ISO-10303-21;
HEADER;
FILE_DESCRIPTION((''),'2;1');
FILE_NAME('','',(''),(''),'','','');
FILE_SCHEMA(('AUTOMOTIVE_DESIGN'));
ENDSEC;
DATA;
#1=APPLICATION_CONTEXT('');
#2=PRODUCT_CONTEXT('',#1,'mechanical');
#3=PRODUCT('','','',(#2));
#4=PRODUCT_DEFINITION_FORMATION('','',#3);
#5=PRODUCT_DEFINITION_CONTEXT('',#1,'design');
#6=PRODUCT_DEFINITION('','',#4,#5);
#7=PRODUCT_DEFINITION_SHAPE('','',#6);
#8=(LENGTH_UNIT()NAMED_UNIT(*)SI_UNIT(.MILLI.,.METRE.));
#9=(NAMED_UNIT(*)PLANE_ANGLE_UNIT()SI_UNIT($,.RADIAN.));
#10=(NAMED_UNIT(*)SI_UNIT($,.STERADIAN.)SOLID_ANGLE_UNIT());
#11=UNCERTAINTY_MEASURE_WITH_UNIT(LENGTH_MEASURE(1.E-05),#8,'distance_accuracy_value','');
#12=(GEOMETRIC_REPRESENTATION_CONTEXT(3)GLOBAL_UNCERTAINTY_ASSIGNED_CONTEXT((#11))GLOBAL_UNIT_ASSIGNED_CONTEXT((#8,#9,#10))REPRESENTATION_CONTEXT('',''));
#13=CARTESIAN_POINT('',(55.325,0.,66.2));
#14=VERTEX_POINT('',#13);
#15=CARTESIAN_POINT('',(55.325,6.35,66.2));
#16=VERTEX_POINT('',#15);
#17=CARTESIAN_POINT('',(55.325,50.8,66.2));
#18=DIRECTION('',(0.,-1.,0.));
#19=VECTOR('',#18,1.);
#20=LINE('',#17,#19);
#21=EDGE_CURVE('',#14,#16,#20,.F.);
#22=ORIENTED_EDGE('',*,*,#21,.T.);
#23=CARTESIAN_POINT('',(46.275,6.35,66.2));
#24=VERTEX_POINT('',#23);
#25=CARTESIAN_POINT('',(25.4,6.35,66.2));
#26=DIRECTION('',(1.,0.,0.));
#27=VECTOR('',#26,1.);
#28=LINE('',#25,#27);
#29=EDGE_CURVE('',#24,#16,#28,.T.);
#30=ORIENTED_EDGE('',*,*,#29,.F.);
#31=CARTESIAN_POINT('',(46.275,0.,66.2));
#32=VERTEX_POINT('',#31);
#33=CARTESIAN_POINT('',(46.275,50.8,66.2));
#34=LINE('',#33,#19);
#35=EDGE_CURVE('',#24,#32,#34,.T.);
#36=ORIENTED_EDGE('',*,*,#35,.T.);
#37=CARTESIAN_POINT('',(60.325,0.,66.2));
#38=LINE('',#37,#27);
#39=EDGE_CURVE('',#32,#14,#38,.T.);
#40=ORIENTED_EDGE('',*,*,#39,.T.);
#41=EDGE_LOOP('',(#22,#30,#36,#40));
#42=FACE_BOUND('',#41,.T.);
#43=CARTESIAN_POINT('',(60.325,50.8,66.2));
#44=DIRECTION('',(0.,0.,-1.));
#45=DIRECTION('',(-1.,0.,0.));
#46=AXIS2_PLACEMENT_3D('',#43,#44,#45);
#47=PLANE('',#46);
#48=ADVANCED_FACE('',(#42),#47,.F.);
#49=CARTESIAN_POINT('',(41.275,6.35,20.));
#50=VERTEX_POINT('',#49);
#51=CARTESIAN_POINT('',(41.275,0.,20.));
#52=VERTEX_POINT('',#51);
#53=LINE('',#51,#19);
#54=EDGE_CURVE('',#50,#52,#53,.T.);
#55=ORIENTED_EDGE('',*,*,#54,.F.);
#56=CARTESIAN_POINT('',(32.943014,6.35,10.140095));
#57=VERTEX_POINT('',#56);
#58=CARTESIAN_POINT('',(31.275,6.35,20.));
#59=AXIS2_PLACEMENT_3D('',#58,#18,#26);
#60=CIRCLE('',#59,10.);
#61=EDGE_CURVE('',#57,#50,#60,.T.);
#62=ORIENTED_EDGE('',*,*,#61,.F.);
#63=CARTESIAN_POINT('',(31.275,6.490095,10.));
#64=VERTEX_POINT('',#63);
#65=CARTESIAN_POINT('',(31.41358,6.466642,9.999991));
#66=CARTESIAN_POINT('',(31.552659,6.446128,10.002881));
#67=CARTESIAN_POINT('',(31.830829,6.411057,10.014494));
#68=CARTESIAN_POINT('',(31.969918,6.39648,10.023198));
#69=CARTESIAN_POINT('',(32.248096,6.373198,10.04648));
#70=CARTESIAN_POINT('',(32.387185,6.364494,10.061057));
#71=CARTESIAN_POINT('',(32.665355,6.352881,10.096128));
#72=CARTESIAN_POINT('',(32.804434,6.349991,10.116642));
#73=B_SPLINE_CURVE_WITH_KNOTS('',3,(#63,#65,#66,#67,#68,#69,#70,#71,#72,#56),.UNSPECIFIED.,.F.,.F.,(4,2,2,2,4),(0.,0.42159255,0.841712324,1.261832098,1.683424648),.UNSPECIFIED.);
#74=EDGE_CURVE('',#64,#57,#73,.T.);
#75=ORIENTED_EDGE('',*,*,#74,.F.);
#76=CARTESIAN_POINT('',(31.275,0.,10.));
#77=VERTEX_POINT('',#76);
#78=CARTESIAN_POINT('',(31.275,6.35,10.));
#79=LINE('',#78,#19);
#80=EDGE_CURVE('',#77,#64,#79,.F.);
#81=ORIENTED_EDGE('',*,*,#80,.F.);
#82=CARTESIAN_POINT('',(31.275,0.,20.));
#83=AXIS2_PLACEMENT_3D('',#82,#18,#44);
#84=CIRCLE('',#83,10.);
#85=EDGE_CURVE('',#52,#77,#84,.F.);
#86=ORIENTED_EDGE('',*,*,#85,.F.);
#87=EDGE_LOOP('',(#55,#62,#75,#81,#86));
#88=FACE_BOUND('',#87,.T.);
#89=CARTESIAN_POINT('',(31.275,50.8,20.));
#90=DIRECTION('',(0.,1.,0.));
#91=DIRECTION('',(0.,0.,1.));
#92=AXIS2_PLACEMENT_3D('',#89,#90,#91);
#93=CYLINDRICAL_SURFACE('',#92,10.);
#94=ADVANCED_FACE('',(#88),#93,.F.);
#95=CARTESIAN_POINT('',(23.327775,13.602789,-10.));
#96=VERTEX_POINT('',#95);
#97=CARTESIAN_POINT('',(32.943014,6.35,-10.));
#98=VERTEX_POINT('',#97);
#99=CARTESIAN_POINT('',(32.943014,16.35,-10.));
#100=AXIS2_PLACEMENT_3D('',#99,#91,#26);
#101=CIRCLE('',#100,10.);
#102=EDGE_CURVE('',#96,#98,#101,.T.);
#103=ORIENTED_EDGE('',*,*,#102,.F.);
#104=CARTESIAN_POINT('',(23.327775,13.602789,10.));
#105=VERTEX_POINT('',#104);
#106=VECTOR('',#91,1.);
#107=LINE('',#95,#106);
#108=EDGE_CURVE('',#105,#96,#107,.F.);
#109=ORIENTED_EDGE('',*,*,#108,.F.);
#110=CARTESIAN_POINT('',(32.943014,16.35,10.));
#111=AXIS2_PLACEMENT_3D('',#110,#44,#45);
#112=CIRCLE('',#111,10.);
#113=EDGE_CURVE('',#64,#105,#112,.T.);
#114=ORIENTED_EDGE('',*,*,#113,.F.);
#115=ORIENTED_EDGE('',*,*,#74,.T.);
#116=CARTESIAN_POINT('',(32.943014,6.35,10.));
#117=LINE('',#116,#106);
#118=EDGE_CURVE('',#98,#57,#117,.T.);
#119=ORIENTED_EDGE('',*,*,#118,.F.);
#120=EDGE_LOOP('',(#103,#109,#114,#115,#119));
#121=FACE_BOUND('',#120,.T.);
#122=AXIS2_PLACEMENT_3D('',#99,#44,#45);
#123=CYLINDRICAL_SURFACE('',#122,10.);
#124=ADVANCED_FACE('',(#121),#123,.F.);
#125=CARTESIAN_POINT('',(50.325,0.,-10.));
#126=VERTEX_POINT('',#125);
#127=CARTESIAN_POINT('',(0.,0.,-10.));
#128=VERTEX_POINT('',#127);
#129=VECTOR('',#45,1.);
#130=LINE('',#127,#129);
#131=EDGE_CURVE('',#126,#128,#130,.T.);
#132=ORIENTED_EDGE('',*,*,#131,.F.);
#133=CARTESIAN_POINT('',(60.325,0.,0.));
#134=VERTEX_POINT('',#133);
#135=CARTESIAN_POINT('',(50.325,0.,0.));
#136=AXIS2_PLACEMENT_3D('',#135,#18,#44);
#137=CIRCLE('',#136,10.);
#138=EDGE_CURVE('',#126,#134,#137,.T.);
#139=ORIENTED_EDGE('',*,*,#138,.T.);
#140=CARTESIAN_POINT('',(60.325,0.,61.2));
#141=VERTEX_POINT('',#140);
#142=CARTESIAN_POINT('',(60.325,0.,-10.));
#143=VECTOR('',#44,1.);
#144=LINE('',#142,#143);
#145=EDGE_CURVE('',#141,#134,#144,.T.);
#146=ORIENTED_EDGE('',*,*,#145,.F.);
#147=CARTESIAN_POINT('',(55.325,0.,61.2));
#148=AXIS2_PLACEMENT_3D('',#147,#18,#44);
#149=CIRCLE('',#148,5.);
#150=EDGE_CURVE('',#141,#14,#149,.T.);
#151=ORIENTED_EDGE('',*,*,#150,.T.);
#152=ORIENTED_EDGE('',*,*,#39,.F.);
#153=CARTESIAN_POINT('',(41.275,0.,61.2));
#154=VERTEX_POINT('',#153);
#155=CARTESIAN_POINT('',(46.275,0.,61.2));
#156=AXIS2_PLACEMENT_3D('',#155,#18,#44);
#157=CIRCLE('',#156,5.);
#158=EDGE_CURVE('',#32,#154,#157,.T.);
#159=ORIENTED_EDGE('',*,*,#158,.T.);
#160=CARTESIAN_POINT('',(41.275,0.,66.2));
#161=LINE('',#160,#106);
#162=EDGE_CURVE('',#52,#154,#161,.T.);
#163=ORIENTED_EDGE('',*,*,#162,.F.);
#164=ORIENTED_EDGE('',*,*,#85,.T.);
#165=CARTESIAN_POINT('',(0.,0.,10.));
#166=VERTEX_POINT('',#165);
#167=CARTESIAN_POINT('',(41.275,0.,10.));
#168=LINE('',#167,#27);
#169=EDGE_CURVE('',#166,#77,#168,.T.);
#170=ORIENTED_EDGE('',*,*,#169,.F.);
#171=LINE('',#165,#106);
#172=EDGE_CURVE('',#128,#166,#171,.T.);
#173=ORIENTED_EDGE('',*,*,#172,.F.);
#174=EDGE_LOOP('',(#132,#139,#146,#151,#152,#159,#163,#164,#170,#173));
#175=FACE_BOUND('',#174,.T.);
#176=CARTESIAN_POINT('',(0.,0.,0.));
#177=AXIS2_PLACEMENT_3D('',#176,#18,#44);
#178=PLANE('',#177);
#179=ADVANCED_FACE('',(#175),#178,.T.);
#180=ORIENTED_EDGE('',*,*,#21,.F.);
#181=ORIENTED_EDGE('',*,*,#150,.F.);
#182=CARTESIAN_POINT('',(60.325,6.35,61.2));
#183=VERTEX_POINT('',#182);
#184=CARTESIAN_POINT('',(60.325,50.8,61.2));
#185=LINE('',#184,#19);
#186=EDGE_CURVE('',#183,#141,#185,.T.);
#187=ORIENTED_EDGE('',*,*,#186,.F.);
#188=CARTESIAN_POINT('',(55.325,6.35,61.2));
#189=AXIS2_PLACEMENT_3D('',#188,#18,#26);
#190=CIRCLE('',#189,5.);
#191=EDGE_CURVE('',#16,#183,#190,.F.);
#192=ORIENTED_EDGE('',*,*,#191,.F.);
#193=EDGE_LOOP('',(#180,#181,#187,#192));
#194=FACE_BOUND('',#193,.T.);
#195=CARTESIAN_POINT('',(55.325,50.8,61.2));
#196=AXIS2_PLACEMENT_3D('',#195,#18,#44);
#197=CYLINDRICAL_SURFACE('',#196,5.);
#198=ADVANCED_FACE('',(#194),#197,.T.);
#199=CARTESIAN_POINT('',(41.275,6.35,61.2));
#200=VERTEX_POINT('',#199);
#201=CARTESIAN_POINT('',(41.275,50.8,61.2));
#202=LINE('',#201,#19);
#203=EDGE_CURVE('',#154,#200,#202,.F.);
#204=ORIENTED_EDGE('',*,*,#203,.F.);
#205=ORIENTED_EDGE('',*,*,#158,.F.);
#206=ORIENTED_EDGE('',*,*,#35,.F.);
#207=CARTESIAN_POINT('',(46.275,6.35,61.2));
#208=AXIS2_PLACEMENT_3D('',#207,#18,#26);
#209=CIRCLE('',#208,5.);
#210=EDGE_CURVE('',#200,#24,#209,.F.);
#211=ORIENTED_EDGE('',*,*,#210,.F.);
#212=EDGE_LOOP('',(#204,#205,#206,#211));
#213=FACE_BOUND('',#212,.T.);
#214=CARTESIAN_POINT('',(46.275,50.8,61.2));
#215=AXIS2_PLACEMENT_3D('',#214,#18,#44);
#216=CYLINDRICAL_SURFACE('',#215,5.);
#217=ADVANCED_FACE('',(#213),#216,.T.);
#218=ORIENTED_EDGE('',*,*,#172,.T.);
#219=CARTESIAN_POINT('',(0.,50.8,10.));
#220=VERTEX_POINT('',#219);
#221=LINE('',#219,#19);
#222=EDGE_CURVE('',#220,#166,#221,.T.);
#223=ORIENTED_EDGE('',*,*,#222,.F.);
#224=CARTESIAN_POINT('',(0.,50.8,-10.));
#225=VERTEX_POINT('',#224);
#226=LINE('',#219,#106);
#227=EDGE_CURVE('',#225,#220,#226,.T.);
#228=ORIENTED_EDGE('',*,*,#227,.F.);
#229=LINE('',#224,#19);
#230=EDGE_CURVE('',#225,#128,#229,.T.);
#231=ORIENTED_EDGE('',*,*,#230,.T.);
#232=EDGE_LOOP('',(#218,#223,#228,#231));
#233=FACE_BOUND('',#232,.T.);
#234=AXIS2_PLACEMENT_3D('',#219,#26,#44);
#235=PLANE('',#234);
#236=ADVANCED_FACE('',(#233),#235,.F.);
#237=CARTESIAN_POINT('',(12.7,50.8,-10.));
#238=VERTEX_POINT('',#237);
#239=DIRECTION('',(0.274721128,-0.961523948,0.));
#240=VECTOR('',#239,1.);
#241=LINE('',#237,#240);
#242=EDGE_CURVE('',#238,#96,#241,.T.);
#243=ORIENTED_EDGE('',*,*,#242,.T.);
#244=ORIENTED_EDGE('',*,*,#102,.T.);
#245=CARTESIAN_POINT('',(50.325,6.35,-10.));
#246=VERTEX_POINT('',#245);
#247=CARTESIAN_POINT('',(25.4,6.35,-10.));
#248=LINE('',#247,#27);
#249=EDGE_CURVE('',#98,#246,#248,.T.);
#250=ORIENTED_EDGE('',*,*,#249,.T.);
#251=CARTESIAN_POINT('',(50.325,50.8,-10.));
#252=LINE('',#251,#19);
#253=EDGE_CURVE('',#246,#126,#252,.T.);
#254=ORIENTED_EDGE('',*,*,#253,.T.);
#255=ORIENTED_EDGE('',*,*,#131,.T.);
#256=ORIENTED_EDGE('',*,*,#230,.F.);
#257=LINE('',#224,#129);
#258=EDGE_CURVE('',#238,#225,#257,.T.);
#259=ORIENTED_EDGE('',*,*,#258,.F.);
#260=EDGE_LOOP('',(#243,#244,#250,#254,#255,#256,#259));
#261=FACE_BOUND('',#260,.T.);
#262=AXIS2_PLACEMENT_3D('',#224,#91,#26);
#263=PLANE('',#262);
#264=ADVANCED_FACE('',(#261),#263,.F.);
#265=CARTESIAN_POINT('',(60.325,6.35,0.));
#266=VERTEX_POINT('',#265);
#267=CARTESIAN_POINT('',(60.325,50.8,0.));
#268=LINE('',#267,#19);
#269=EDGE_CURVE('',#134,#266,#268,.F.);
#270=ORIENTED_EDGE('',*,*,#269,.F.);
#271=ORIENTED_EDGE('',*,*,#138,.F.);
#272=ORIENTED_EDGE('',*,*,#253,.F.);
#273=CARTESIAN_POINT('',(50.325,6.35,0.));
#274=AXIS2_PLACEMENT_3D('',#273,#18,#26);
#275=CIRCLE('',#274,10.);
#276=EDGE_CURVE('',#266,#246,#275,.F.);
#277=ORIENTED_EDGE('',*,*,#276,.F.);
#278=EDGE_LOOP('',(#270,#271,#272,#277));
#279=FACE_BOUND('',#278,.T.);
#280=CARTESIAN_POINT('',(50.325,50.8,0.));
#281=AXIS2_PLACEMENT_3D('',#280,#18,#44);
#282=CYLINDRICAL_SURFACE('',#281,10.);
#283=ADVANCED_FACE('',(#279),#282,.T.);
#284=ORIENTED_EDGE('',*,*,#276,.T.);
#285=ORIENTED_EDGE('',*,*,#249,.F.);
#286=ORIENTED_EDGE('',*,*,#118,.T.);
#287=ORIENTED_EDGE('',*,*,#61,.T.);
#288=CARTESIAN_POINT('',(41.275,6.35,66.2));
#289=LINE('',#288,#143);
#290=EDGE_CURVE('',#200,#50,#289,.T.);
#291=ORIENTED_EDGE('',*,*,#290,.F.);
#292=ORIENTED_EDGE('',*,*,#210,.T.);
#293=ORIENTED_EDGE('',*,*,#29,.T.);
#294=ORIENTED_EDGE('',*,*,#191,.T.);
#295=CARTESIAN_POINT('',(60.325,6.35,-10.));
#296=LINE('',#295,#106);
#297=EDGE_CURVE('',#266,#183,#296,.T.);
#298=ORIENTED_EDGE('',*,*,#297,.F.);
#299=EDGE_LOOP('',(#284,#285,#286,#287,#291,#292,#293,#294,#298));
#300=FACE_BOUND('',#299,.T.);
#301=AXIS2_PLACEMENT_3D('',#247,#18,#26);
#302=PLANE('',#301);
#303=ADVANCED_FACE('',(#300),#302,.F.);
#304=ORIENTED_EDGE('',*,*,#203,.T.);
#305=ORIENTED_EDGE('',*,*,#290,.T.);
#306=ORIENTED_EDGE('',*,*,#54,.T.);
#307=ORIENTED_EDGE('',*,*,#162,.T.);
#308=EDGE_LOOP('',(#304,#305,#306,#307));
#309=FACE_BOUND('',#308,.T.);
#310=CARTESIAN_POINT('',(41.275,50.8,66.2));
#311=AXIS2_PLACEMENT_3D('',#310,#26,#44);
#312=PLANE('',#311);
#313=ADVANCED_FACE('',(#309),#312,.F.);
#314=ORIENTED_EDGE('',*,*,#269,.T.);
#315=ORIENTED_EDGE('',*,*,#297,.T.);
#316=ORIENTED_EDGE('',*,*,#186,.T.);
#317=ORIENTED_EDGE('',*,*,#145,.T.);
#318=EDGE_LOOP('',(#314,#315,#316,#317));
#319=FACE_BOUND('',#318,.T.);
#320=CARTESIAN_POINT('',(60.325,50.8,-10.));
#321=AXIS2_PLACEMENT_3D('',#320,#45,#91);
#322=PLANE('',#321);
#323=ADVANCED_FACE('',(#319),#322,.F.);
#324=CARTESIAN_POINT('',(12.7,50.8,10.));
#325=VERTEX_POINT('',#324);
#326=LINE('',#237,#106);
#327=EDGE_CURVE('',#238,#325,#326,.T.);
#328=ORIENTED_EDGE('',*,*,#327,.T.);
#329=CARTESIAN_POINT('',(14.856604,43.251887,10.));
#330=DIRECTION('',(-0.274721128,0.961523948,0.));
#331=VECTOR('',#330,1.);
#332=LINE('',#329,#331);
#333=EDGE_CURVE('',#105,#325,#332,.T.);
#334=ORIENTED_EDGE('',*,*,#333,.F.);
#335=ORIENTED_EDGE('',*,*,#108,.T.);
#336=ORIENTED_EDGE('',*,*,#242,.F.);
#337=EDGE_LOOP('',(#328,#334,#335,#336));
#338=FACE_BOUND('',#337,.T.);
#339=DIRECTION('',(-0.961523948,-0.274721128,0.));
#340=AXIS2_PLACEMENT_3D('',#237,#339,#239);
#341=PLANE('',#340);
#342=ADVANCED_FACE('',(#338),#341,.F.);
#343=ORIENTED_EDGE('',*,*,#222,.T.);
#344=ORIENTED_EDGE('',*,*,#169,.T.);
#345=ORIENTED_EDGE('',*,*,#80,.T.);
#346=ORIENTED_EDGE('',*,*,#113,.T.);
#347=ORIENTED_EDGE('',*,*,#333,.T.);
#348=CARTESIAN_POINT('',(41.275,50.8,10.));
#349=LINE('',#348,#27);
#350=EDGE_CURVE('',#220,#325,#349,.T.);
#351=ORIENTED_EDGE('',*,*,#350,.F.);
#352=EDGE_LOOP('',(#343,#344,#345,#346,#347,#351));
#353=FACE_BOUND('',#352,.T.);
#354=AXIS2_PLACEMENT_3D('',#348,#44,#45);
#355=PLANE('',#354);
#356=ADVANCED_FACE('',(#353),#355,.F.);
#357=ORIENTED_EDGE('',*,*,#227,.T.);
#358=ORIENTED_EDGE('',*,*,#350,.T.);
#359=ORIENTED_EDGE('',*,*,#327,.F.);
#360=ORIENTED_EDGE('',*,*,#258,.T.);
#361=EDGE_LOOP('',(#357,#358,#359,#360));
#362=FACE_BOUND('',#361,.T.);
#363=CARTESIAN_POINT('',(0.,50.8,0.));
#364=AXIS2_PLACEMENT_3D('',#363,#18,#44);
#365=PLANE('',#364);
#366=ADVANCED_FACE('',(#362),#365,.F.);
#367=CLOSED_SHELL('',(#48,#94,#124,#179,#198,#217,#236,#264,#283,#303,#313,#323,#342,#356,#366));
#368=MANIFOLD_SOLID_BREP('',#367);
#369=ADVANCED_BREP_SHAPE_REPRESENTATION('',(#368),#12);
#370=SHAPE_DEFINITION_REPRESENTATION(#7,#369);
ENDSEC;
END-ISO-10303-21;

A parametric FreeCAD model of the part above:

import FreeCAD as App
import Part
import Sketcher
Q = App.Units.Quantity


def edges_at(feature, points):
    """Names of the edges that pass closest to the given points."""
    edges = feature.Shape.Edges
    near = lambda p: min(range(len(edges)), key=lambda i: edges[i].distToShape(Part.Vertex(*p))[0])
    return sorted({f"Edge{near(p) + 1}" for p in points})

doc = App.newDocument("Part")
body = doc.addObject("PartDesign::Body", "Body")

# Sketch on XZ plane
sketch1 = body.newObject("Sketcher::SketchObject", "Sketch")
sketch1.AttachmentSupport = (doc.getObject("XZ_Plane"), [""])
sketch1.MapMode = "FlatFace"
sketch1.addGeometry([
    Part.LineSegment(App.Vector(0, -10, 0), App.Vector(0, 10, 0)),  # 0
    Part.LineSegment(App.Vector(0, 10, 0), App.Vector(41.275, 10, 0)),  # 1
    Part.LineSegment(App.Vector(41.275, 10, 0), App.Vector(41.275, 66.2, 0)),  # 2
    Part.LineSegment(App.Vector(41.275, 66.2, 0), App.Vector(60.325, 66.2, 0)),  # 3
    Part.LineSegment(App.Vector(60.325, 66.2, 0), App.Vector(60.325, -10, 0)),  # 4
    Part.LineSegment(App.Vector(60.325, -10, 0), App.Vector(0, -10, 0)),  # 5
], False)
sketch1.addConstraint([
    Sketcher.Constraint("Coincident", 0, 2, 1, 1),
    Sketcher.Constraint("Coincident", 1, 2, 2, 1),
    Sketcher.Constraint("Coincident", 2, 2, 3, 1),
    Sketcher.Constraint("Coincident", 3, 2, 4, 1),
    Sketcher.Constraint("Coincident", 4, 2, 5, 1),
    Sketcher.Constraint("Coincident", 5, 2, 0, 1),
    Sketcher.Constraint("Vertical", 0),
    Sketcher.Constraint("Horizontal", 1),
    Sketcher.Constraint("Vertical", 2),
    Sketcher.Constraint("Horizontal", 3),
    Sketcher.Constraint("Vertical", 4),
    Sketcher.Constraint("Horizontal", 5),
    Sketcher.Constraint("Symmetric", 0, 2, 5, 2, -1, 1),
    Sketcher.Constraint("DistanceY", 4, 2, 4, 1, Q("3 in")),
    Sketcher.Constraint("DistanceX", 3, 1, 3, 2, Q("0.75 in")),
    Sketcher.Constraint("DistanceX", 1, 1, 1, 2, Q("1.625 in")),
    Sketcher.Constraint("DistanceY", 0, 1, 0, 2, Q("20 mm")),
])
pad1 = body.newObject("PartDesign::Pad", "Pad")
pad1.Profile = sketch1
pad1.Length = Q("2 in")
pad1.Reversed = True

# Sketch on XY plane
sketch2 = body.newObject("Sketcher::SketchObject", "Sketch001")
sketch2.AttachmentSupport = (doc.getObject("XY_Plane"), [""])
sketch2.MapMode = "FlatFace"
sketch2.addGeometry([
    Part.LineSegment(App.Vector(12.7, 50.8, 0), App.Vector(25.4, 6.35, 0)),
    Part.LineSegment(App.Vector(25.4, 6.35, 0), App.Vector(60.325, 6.35, 0)),
    Part.LineSegment(App.Vector(60.325, 6.35, 0), App.Vector(60.325, 50.8, 0)),
    Part.LineSegment(App.Vector(60.325, 50.8, 0), App.Vector(12.7, 50.8, 0)),
], False)
sketch2.addConstraint([
    Sketcher.Constraint("Coincident", 0, 2, 1, 1),
    Sketcher.Constraint("Coincident", 1, 2, 2, 1),
    Sketcher.Constraint("Coincident", 2, 2, 3, 1),
    Sketcher.Constraint("Coincident", 3, 2, 0, 1),
    Sketcher.Constraint("Horizontal", 1),
    Sketcher.Constraint("Vertical", 2),
    Sketcher.Constraint("Horizontal", 3),
    Sketcher.Constraint("DistanceX", -1, 1, 0, 2, Q("1 in")),
    Sketcher.Constraint("DistanceY", -1, 1, 2, 2, Q("2 in")),
    Sketcher.Constraint("DistanceY", 2, 1, 2, 2, Q("1.75 in")),
    Sketcher.Constraint("DistanceX", -1, 1, 3, 2, Q("0.5 in")),
    Sketcher.Constraint("DistanceX", 1, 1, 1, 2, Q("1.375 in")),
])
pocket1 = body.newObject("PartDesign::Pocket", "Pocket")
pocket1.Profile = sketch2
pocket1.Type = "ThroughAll"
pocket1.Midplane = True
doc.recompute()

fillet = body.newObject("PartDesign::Fillet", "Fillet")
fillet.Base = (pocket1, edges_at(pocket1, [(25.4, 6.35, 0)]))
fillet.Radius = 10
doc.recompute()

fillet2 = body.newObject("PartDesign::Fillet", "Fillet001")
fillet2.Base = (fillet, edges_at(fillet, [(60.325, 3.175, -10), (41.275, 3.175, 10)]))
fillet2.Radius = 10
doc.recompute()

fillet3 = body.newObject("PartDesign::Fillet", "Fillet002")
fillet3.Base = (fillet2, edges_at(fillet2, [(60.325, 3.175, 66.2), (41.275, 3.175, 66.2)]))
fillet3.Radius = 5

doc.recompute()
